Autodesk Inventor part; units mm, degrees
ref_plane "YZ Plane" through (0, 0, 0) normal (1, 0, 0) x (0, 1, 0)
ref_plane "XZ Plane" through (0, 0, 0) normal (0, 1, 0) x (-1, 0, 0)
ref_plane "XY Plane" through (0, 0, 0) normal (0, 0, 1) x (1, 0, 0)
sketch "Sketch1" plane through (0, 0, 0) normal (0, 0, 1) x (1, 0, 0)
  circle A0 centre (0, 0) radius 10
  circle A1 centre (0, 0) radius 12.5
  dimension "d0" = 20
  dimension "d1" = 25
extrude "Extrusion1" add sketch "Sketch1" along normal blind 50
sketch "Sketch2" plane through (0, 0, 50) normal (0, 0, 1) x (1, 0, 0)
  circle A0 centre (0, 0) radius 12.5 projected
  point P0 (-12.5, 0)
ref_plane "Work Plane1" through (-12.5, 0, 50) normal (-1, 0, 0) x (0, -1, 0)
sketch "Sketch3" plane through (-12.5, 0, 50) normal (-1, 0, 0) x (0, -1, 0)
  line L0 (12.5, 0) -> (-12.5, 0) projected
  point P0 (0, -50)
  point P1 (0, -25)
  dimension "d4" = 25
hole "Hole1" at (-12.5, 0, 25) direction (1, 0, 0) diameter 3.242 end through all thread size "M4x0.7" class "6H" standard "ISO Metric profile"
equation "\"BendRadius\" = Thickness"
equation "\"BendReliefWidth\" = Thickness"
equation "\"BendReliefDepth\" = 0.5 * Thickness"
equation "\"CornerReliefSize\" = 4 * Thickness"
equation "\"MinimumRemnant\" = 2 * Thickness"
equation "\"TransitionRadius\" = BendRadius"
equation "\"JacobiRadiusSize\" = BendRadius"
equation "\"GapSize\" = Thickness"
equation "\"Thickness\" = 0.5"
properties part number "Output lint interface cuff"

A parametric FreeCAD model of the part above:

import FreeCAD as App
import Part
import Sketcher

V = App.Vector
Q = App.Units.Quantity

doc = App.newDocument("Part")
body = doc.addObject("PartDesign::Body", "Body")

# Sketch on XY plane
sketch1 = doc.addObject("Sketcher::SketchObject", "Sketch")
body.addObject(sketch1)
sketch1.AttachmentSupport = (doc.XY_Plane, [""])
sketch1.MapMode = "FlatFace"
sketch1.addGeometry(Part.Circle(V(0, 0, 0), V(0, 0, 1), 12), False)
sketch1.addGeometry(Part.Circle(V(0, 0, 0), V(0, 0, 1), 10), False)
sketch1.addConstraint(Sketcher.Constraint("Coincident", 0, 3, -1, 1))
sketch1.addConstraint(Sketcher.Constraint("Coincident", 1, 3, -1, 1))
sketch1.addConstraint(Sketcher.Constraint("Diameter", 0, Q("25 mm")))
sketch1.addConstraint(Sketcher.Constraint("Diameter", 1, Q("20 mm")))
pad1 = doc.addObject("PartDesign::Pad", "Pad")
body.addObject(pad1)
pad1.Profile = sketch1
pad1.Length = 50

# Sketch on YZ plane
sketch2 = doc.addObject("Sketcher::SketchObject", "Sketch001")
body.addObject(sketch2)
sketch2.AttachmentSupport = (doc.YZ_Plane, [""])
sketch2.MapMode = "FlatFace"
sketch2.AttachmentOffset = App.Placement(V(0, 0, -12.5), App.Rotation())
sketch2.addGeometry(Part.Circle(V(0, 25, 0), V(0, 0, 1), 1.6), False)
sketch2.addConstraint(Sketcher.Constraint("PointOnObject", 0, 3, -2))
sketch2.addConstraint(Sketcher.Constraint("Diameter", 0, Q("3.242 mm")))
sketch2.addConstraint(Sketcher.Constraint("DistanceY", -1, 1, 0, 3, Q("25 mm")))
doc.recompute()
hole = doc.addObject("PartDesign::Hole", "Hole")
body.addObject(hole)
hole.Profile = sketch2
hole.ThreadType = "None"
hole.Diameter = 3.242
hole.DepthType = "ThroughAll"
hole.Reversed = True

doc.recompute()
